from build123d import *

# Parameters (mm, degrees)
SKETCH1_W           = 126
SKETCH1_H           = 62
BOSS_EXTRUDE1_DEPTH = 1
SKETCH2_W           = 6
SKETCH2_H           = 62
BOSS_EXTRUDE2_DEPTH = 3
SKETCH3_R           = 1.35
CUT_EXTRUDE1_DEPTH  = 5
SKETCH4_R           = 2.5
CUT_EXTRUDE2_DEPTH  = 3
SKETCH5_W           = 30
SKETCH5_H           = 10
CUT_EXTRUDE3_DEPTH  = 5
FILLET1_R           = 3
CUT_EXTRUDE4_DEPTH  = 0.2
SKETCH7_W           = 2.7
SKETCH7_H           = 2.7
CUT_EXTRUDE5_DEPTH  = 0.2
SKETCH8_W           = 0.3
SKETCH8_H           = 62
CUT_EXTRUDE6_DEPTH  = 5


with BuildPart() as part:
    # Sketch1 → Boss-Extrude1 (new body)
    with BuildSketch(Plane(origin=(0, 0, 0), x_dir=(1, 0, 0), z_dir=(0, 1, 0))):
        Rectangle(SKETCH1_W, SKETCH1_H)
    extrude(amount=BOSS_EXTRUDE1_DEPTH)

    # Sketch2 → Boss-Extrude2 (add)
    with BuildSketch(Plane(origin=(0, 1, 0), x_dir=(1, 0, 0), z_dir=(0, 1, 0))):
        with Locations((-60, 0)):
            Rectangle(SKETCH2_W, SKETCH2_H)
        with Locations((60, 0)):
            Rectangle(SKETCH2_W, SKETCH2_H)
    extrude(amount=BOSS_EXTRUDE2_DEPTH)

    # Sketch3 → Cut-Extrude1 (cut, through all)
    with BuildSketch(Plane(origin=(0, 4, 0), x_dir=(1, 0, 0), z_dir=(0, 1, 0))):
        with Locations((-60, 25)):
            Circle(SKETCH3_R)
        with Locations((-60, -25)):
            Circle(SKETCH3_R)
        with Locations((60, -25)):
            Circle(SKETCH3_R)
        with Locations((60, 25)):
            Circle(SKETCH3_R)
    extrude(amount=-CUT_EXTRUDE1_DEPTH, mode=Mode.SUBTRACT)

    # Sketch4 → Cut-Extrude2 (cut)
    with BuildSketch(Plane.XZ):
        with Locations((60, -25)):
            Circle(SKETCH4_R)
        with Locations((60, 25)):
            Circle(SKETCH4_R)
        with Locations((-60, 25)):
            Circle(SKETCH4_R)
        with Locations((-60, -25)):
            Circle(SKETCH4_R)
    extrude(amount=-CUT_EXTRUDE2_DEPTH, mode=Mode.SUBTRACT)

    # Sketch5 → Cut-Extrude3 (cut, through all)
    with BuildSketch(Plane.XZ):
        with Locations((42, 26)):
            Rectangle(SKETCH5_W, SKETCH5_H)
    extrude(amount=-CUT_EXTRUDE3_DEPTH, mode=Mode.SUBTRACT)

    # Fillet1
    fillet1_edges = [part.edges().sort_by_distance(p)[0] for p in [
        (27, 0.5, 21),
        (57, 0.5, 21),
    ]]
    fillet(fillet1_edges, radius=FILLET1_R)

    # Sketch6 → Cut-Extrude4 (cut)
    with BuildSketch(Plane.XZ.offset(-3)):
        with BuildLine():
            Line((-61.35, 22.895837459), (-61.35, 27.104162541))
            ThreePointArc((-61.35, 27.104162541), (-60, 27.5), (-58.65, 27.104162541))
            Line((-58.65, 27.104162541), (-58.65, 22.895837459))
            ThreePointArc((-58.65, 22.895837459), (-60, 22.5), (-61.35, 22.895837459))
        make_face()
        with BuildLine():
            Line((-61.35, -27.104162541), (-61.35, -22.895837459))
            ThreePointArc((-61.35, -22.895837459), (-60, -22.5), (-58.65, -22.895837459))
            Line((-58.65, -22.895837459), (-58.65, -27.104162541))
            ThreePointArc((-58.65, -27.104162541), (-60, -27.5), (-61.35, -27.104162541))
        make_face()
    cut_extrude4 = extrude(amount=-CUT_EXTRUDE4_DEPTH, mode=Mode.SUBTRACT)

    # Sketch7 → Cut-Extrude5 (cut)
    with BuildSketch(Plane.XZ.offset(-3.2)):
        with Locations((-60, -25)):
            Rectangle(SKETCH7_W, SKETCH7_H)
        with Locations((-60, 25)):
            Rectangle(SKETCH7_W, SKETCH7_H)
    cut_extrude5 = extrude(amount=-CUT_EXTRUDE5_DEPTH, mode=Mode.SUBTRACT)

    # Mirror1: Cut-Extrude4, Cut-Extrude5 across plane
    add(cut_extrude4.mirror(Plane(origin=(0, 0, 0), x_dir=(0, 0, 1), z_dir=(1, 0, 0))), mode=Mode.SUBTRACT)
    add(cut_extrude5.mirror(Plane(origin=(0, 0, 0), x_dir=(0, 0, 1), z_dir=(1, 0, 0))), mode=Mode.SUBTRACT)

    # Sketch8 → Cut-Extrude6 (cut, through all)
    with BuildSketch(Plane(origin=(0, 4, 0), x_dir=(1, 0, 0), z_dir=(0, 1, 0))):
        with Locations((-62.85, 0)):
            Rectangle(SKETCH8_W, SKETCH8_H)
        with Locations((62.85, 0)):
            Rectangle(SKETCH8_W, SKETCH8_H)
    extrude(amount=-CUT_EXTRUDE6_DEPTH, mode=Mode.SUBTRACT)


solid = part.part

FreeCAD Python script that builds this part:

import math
import FreeCAD as App
import Part
import Sketcher


def edges_at(feature, points):
    """Names of the edges that pass closest to the given points."""
    edges = feature.Shape.Edges
    near = lambda p: min(range(len(edges)), key=lambda i: edges[i].distToShape(Part.Vertex(*p))[0])
    return sorted({f"Edge{near(p) + 1}" for p in points})


def add_polygon(sketch, points):
    """Adds a closed chain of lines whose ends are joined by coincident constraints."""
    first, n = sketch.GeometryCount, len(points)
    for a, b in zip(points, points[1:] + points[:1]):
        sketch.addGeometry(Part.LineSegment(App.Vector(*a, 0), App.Vector(*b, 0)), False)
    for i in range(n):
        sketch.addConstraint(Sketcher.Constraint("Coincident", first + i, 2, first + (i + 1) % n, 1))

doc = App.newDocument("Part")
params = doc.addObject("Spreadsheet::Sheet", "Params")
for row, (alias, value) in enumerate([
    ("sketch1_width", "126 mm"),
    ("sketch1_height", "62 mm"),
    ("pad1_length", "1 mm"),
    ("sketch2_width", "6 mm"),
    ("sketch2_height", "62 mm"),
    ("pad2_length", "3 mm"),
    ("sketch3_diameter", "2.7 mm"),
    ("sketch4_diameter", "5 mm"),
    ("pocket2_length", "3 mm"),
    ("sketch5_width", "30 mm"),
    ("sketch5_height", "10 mm"),
    ("fillet_radius", "3 mm"),
    ("sketch6_radius", "2.5 mm"),
    ("pocket4_length", "0.2 mm"),
    ("sketch7_width", "2.7 mm"),
    ("pocket5_length", "0.2 mm"),
    ("sketch8_height", "62 mm"),
    ("sketch8_width", "0.3 mm"),
], start=1):
    params.set(f"A{row}", alias)
    params.set(f"B{row}", "=" + value)
    params.setAlias(f"B{row}", alias)

body = doc.addObject("PartDesign::Body", "Body")

sketch1 = doc.addObject("Sketcher::SketchObject", "Sketch")
body.addObject(sketch1)
sketch1.AttachmentSupport = (doc.XZ_Plane, [""])
sketch1.MapMode = "FlatFace"
add_polygon(sketch1, [(-63, -31), (-63, 31), (63, 31), (63, -31)])
sketch1.addConstraint(Sketcher.Constraint("Vertical", 0))
sketch1.addConstraint(Sketcher.Constraint("Horizontal", 1))
sketch1.addConstraint(Sketcher.Constraint("Vertical", 2))
sketch1.addConstraint(Sketcher.Constraint("Horizontal", 3))
sketch1.addConstraint(Sketcher.Constraint("Symmetric", 0, 2, 2, 2, -1, 1))
sketch1.addConstraint(Sketcher.Constraint("DistanceX", 1, 1, 1, 2, 126.0))
sketch1.addConstraint(Sketcher.Constraint("DistanceY", 0, 1, 0, 2, 62.0))
sketch1.setExpression("Constraints[9]", "Params.sketch1_width")
sketch1.setExpression("Constraints[10]", "Params.sketch1_height")
pad1 = doc.addObject("PartDesign::Pad", "Pad")
body.addObject(pad1)
pad1.Profile = sketch1
pad1.setExpression("Length", "Params.pad1_length")
pad1.Reversed = True

sketch2 = doc.addObject("Sketcher::SketchObject", "Sketch001")
body.addObject(sketch2)
sketch2.AttachmentSupport = (doc.XZ_Plane, [""])
sketch2.MapMode = "FlatFace"
sketch2.AttachmentOffset = App.Placement(App.Vector(0, 0, -1), App.Rotation())
add_polygon(sketch2, [(-63, -31), (-63, 31), (-57, 31), (-57, -31)])
add_polygon(sketch2, [(57, -31), (57, 31), (63, 31), (63, -31)])
sketch2.addConstraint(Sketcher.Constraint("Vertical", 0))
sketch2.addConstraint(Sketcher.Constraint("Horizontal", 1))
sketch2.addConstraint(Sketcher.Constraint("Vertical", 2))
sketch2.addConstraint(Sketcher.Constraint("Horizontal", 3))
sketch2.addConstraint(Sketcher.Constraint("Vertical", 4))
sketch2.addConstraint(Sketcher.Constraint("Horizontal", 5))
sketch2.addConstraint(Sketcher.Constraint("Vertical", 6))
sketch2.addConstraint(Sketcher.Constraint("Horizontal", 7))
sketch2.addConstraint(Sketcher.Constraint("Symmetric", 2, 2, 4, 2, -1, 1))
sketch2.addConstraint(Sketcher.Constraint("Symmetric", 0, 2, 6, 2, -1, 1))
sketch2.addConstraint(Sketcher.Constraint("Horizontal", 1, 2, 4, 2))
sketch2.addConstraint(Sketcher.Constraint("DistanceX", 1, 1, 1, 2, 6.0))
sketch2.addConstraint(Sketcher.Constraint("DistanceY", 0, 1, 0, 2, 62.0))
sketch2.addConstraint(Sketcher.Constraint("DistanceX", 0, 2, -1, 1, 63.0))
sketch2.setExpression("Constraints[19]", "Params.sketch2_width")
sketch2.setExpression("Constraints[20]", "Params.sketch2_height")
pad2 = doc.addObject("PartDesign::Pad", "Pad001")
body.addObject(pad2)
pad2.Profile = sketch2
pad2.setExpression("Length", "Params.pad2_length")
pad2.Reversed = True

sketch3 = doc.addObject("Sketcher::SketchObject", "Sketch002")
body.addObject(sketch3)
sketch3.AttachmentSupport = (doc.XZ_Plane, [""])
sketch3.MapMode = "FlatFace"
sketch3.AttachmentOffset = App.Placement(App.Vector(0, 0, -4), App.Rotation())
sketch3.addGeometry(Part.Circle(App.Vector(-60, -25, 0), App.Vector(0, 0, 1), 1.4), False)
sketch3.addGeometry(Part.Circle(App.Vector(-60, 25, 0), App.Vector(0, 0, 1), 1.4), False)
sketch3.addGeometry(Part.Circle(App.Vector(60, 25, 0), App.Vector(0, 0, 1), 1.4), False)
sketch3.addGeometry(Part.Circle(App.Vector(60, -25, 0), App.Vector(0, 0, 1), 1.4), False)
sketch3.addConstraint(Sketcher.Constraint("Equal", 0, 1))
sketch3.addConstraint(Sketcher.Constraint("Equal", 1, 2))
sketch3.addConstraint(Sketcher.Constraint("Equal", 2, 3))
sketch3.addConstraint(Sketcher.Constraint("Symmetric", 0, 3, 2, 3, -1, 1))
sketch3.addConstraint(Sketcher.Constraint("Symmetric", 1, 3, 3, 3, -1, 1))
sketch3.addConstraint(Sketcher.Constraint("Symmetric", 1, 3, 2, 3, -2))
sketch3.addConstraint(Sketcher.Constraint("Diameter", 0, 2.7))
sketch3.addConstraint(Sketcher.Constraint("DistanceX", 0, 3, -1, 1, 60.0))
sketch3.addConstraint(Sketcher.Constraint("DistanceY", 0, 3, -1, 1, 25.0))
sketch3.setExpression("Constraints[6]", "Params.sketch3_diameter")
pocket1 = doc.addObject("PartDesign::Pocket", "Pocket")
body.addObject(pocket1)
pocket1.Profile = sketch3
pocket1.Type = "ThroughAll"
pocket1.Reversed = True

sketch4 = doc.addObject("Sketcher::SketchObject", "Sketch003")
body.addObject(sketch4)
sketch4.AttachmentSupport = (doc.XZ_Plane, [""])
sketch4.MapMode = "FlatFace"
sketch4.addGeometry(Part.Circle(App.Vector(60, -25, 0), App.Vector(0, 0, 1), 2.5), False)
sketch4.addGeometry(Part.Circle(App.Vector(60, 25, 0), App.Vector(0, 0, 1), 2.5), False)
sketch4.addGeometry(Part.Circle(App.Vector(-60, 25, 0), App.Vector(0, 0, 1), 2.5), False)
sketch4.addGeometry(Part.Circle(App.Vector(-60, -25, 0), App.Vector(0, 0, 1), 2.5), False)
sketch4.addConstraint(Sketcher.Constraint("Equal", 0, 1))
sketch4.addConstraint(Sketcher.Constraint("Equal", 1, 2))
sketch4.addConstraint(Sketcher.Constraint("Equal", 2, 3))
sketch4.addConstraint(Sketcher.Constraint("Symmetric", 0, 3, 2, 3, -1, 1))
sketch4.addConstraint(Sketcher.Constraint("Symmetric", 1, 3, 3, 3, -1, 1))
sketch4.addConstraint(Sketcher.Constraint("Symmetric", 1, 3, 2, 3, -2))
sketch4.addConstraint(Sketcher.Constraint("Diameter", 0, 5.0))
sketch4.addConstraint(Sketcher.Constraint("DistanceX", -1, 1, 0, 3, 60.0))
sketch4.addConstraint(Sketcher.Constraint("DistanceY", 0, 3, -1, 1, 25.0))
sketch4.setExpression("Constraints[6]", "Params.sketch4_diameter")
pocket2 = doc.addObject("PartDesign::Pocket", "Pocket001")
body.addObject(pocket2)
pocket2.Profile = sketch4
pocket2.setExpression("Length", "Params.pocket2_length")

sketch5 = doc.addObject("Sketcher::SketchObject", "Sketch004")
body.addObject(sketch5)
sketch5.AttachmentSupport = (doc.XZ_Plane, [""])
sketch5.MapMode = "FlatFace"
add_polygon(sketch5, [(27, 31), (27, 21), (57, 21), (57, 31)])
sketch5.addConstraint(Sketcher.Constraint("Vertical", 0))
sketch5.addConstraint(Sketcher.Constraint("Horizontal", 1))
sketch5.addConstraint(Sketcher.Constraint("Vertical", 2))
sketch5.addConstraint(Sketcher.Constraint("Horizontal", 3))
sketch5.addConstraint(Sketcher.Constraint("DistanceX", 1, 1, 1, 2, 30.0))
sketch5.addConstraint(Sketcher.Constraint("DistanceY", 0, 2, 0, 1, 10.0))
sketch5.addConstraint(Sketcher.Constraint("DistanceX", -1, 1, 0, 2, 27.0))
sketch5.addConstraint(Sketcher.Constraint("DistanceY", -1, 1, 0, 2, 21.0))
sketch5.setExpression("Constraints[8]", "Params.sketch5_width")
sketch5.setExpression("Constraints[9]", "Params.sketch5_height")
pocket3 = doc.addObject("PartDesign::Pocket", "Pocket002")
body.addObject(pocket3)
pocket3.Profile = sketch5
pocket3.Type = "ThroughAll"
doc.recompute()

fillet = doc.addObject("PartDesign::Fillet", "Fillet")
body.addObject(fillet)
fillet.Base = (pocket3, edges_at(pocket3, [(27, 0.5, 21), (57, 0.5, 21)]))
fillet.setExpression("Radius", "Params.fillet_radius")

sketch6 = doc.addObject("Sketcher::SketchObject", "Sketch005")
body.addObject(sketch6)
sketch6.AttachmentSupport = (doc.XZ_Plane, [""])
sketch6.MapMode = "FlatFace"
sketch6.AttachmentOffset = App.Placement(App.Vector(0, 0, -3), App.Rotation())
sketch6.addGeometry(Part.LineSegment(App.Vector(-61.4, 27.1, 0), App.Vector(-61.4, 22.9, 0)), False)
sketch6.addGeometry(Part.ArcOfCircle(Part.Circle(App.Vector(-60, 25, 0), App.Vector(0, 0, 1), 2.5), math.radians(-123), math.radians(-57)), False)
sketch6.addGeometry(Part.LineSegment(App.Vector(-58.6, 22.9, 0), App.Vector(-58.6, 27.1, 0)), False)
sketch6.addGeometry(Part.ArcOfCircle(Part.Circle(App.Vector(-60, 25, 0), App.Vector(0, 0, 1), 2.5), math.radians(57), math.radians(123)), False)
sketch6.addGeometry(Part.LineSegment(App.Vector(-61.4, -22.9, 0), App.Vector(-61.4, -27.1, 0)), False)
sketch6.addGeometry(Part.ArcOfCircle(Part.Circle(App.Vector(-60, -25, 0), App.Vector(0, 0, 1), 2.5), math.radians(-123), math.radians(-57)), False)
sketch6.addGeometry(Part.LineSegment(App.Vector(-58.6, -27.1, 0), App.Vector(-58.6, -22.9, 0)), False)
sketch6.addGeometry(Part.ArcOfCircle(Part.Circle(App.Vector(-60, -25, 0), App.Vector(0, 0, 1), 2.5), math.radians(57), math.radians(123)), False)
sketch6.addConstraint(Sketcher.Constraint("Coincident", 0, 2, 1, 1))
sketch6.addConstraint(Sketcher.Constraint("Coincident", 1, 2, 2, 1))
sketch6.addConstraint(Sketcher.Constraint("Coincident", 2, 2, 3, 1))
sketch6.addConstraint(Sketcher.Constraint("Coincident", 3, 2, 0, 1))
sketch6.addConstraint(Sketcher.Constraint("Coincident", 4, 2, 5, 1))
sketch6.addConstraint(Sketcher.Constraint("Coincident", 5, 2, 6, 1))
sketch6.addConstraint(Sketcher.Constraint("Coincident", 6, 2, 7, 1))
sketch6.addConstraint(Sketcher.Constraint("Coincident", 7, 2, 4, 1))
sketch6.addConstraint(Sketcher.Constraint("Vertical", 0))
sketch6.addConstraint(Sketcher.Constraint("Vertical", 2))
sketch6.addConstraint(Sketcher.Constraint("Vertical", 4))
sketch6.addConstraint(Sketcher.Constraint("Vertical", 6))
sketch6.addConstraint(Sketcher.Constraint("Coincident", 3, 3, 1, 3))
sketch6.addConstraint(Sketcher.Constraint("Coincident", 7, 3, 5, 3))
sketch6.addConstraint(Sketcher.Constraint("Equal", 1, 3))
sketch6.addConstraint(Sketcher.Constraint("Equal", 3, 5))
sketch6.addConstraint(Sketcher.Constraint("Equal", 5, 7))
sketch6.addConstraint(Sketcher.Constraint("Symmetric", 1, 3, 5, 3, -1))
sketch6.addConstraint(Sketcher.Constraint("Horizontal", 0, 2, 1, 2))
sketch6.addConstraint(Sketcher.Constraint("Horizontal", 4, 2, 5, 2))
sketch6.addConstraint(Sketcher.Constraint("Vertical", 3, 2, 4, 2))
sketch6.addConstraint(Sketcher.Constraint("Radius", 1, 2.5))
sketch6.addConstraint(Sketcher.Constraint("DistanceX", 1, 3, -1, 1, 60.0))
sketch6.addConstraint(Sketcher.Constraint("DistanceY", -1, 1, 1, 3, 25.0))
sketch6.addConstraint(Sketcher.Constraint("DistanceX", 0, 2, 1, 2, 2.7))
sketch6.setExpression("Constraints[21]", "Params.sketch6_radius")
pocket4 = doc.addObject("PartDesign::Pocket", "Pocket003")
body.addObject(pocket4)
pocket4.Profile = sketch6
pocket4.setExpression("Length", "Params.pocket4_length")

sketch7 = doc.addObject("Sketcher::SketchObject", "Sketch006")
body.addObject(sketch7)
sketch7.AttachmentSupport = (doc.XZ_Plane, [""])
sketch7.MapMode = "FlatFace"
sketch7.AttachmentOffset = App.Placement(App.Vector(0, 0, -3.2), App.Rotation())
add_polygon(sketch7, [(-61.4, -23.6), (-61.4, -26.4), (-58.6, -26.4), (-58.6, -23.6)])
add_polygon(sketch7, [(-61.4, 26.4), (-61.4, 23.6), (-58.6, 23.6), (-58.6, 26.4)])
sketch7.addConstraint(Sketcher.Constraint("Vertical", 0))
sketch7.addConstraint(Sketcher.Constraint("Horizontal", 1))
sketch7.addConstraint(Sketcher.Constraint("Vertical", 2))
sketch7.addConstraint(Sketcher.Constraint("Horizontal", 3))
sketch7.addConstraint(Sketcher.Constraint("Vertical", 4))
sketch7.addConstraint(Sketcher.Constraint("Horizontal", 5))
sketch7.addConstraint(Sketcher.Constraint("Vertical", 6))
sketch7.addConstraint(Sketcher.Constraint("Horizontal", 7))
sketch7.addConstraint(Sketcher.Constraint("Symmetric", 3, 2, 4, 2, -1))
sketch7.addConstraint(Sketcher.Constraint("Symmetric", 1, 2, 6, 2, -1))
sketch7.addConstraint(Sketcher.Constraint("Equal", 7, 0))
sketch7.addConstraint(Sketcher.Constraint("DistanceX", 1, 1, 1, 2, 2.7))
sketch7.addConstraint(Sketcher.Constraint("DistanceY", 0, 2, 4, 2, 50.0))
sketch7.addConstraint(Sketcher.Constraint("DistanceX", 0, 2, -1, 1, 61.35))
sketch7.setExpression("Constraints[19]", "Params.sketch7_width")
pocket5 = doc.addObject("PartDesign::Pocket", "Pocket004")
body.addObject(pocket5)
pocket5.Profile = sketch7
pocket5.setExpression("Length", "Params.pocket5_length")
doc.recompute()

mirrored = doc.addObject("PartDesign::Mirrored", "Mirrored")
body.addObject(mirrored)
mirrored.Originals = [pocket4, pocket5]
mirrored.MirrorPlane = (doc.YZ_Plane, [""])
body.Tip = mirrored

sketch8 = doc.addObject("Sketcher::SketchObject", "Sketch007")
body.addObject(sketch8)
sketch8.AttachmentSupport = (doc.XZ_Plane, [""])
sketch8.MapMode = "FlatFace"
sketch8.AttachmentOffset = App.Placement(App.Vector(0, 0, -4), App.Rotation())
add_polygon(sketch8, [(-63, -31), (-63, 31), (-62.7, 31), (-62.7, -31)])
add_polygon(sketch8, [(62.7, -31), (62.7, 31), (63, 31), (63, -31)])
sketch8.addConstraint(Sketcher.Constraint("Vertical", 0))
sketch8.addConstraint(Sketcher.Constraint("Horizontal", 1))
sketch8.addConstraint(Sketcher.Constraint("Vertical", 2))
sketch8.addConstraint(Sketcher.Constraint("Horizontal", 3))
sketch8.addConstraint(Sketcher.Constraint("Vertical", 4))
sketch8.addConstraint(Sketcher.Constraint("Horizontal", 5))
sketch8.addConstraint(Sketcher.Constraint("Vertical", 6))
sketch8.addConstraint(Sketcher.Constraint("Horizontal", 7))
sketch8.addConstraint(Sketcher.Constraint("Symmetric", 2, 2, 4, 2, -1, 1))
sketch8.addConstraint(Sketcher.Constraint("Symmetric", 0, 2, 6, 2, -1, 1))
sketch8.addConstraint(Sketcher.Constraint("Horizontal", 1, 2, 4, 2))
sketch8.addConstraint(Sketcher.Constraint("DistanceY", 0, 1, 0, 2, 62.0))
sketch8.addConstraint(Sketcher.Constraint("DistanceX", 1, 1, 1, 2, 0.3))
sketch8.addConstraint(Sketcher.Constraint("DistanceX", 0, 2, -1, 1, 63.0))
sketch8.setExpression("Constraints[19]", "Params.sketch8_height")
sketch8.setExpression("Constraints[20]", "Params.sketch8_width")
pocket6 = doc.addObject("PartDesign::Pocket", "Pocket005")
body.addObject(pocket6)
pocket6.Profile = sketch8
pocket6.Type = "ThroughAll"
pocket6.Reversed = True

doc.recompute()
